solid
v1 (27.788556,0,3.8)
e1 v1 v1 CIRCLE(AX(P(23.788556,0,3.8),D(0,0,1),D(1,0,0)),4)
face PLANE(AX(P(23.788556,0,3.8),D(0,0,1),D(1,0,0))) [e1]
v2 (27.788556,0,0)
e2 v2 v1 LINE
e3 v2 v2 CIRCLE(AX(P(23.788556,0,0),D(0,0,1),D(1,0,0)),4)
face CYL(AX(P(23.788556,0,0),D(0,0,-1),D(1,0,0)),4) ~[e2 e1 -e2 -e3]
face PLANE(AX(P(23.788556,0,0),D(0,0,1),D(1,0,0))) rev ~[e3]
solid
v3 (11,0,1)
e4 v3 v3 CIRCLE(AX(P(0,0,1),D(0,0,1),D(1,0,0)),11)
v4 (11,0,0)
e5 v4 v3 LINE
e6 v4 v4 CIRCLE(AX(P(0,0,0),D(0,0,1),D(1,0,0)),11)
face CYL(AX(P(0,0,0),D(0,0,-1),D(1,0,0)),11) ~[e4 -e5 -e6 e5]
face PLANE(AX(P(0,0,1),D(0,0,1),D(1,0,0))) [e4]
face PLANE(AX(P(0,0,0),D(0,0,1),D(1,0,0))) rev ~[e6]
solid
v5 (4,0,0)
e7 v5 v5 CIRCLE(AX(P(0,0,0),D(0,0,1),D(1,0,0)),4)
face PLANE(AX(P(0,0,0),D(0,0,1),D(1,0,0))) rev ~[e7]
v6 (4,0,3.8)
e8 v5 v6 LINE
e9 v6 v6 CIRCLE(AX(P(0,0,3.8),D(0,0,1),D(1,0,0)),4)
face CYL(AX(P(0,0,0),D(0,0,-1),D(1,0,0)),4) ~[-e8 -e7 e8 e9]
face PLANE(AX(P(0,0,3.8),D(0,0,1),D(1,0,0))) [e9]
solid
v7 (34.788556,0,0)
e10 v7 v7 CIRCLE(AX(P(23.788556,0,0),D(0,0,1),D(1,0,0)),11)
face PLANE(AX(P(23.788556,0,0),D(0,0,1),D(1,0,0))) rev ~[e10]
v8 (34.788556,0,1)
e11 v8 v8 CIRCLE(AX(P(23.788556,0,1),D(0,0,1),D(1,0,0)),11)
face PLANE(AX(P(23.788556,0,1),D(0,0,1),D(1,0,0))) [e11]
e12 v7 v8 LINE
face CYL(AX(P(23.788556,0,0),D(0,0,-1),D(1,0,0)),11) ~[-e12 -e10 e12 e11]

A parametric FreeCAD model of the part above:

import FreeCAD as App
import Part
import Sketcher

V = App.Vector
Q = App.Units.Quantity

doc = App.newDocument("Part")
body = doc.addObject("PartDesign::Body", "Body")

sketch1 = body.newObject("Sketcher::SketchObject", "Sketch")
sketch1.AttachmentSupport = (doc.getObject("XY_Plane"), [""])
sketch1.MapMode = "FlatFace"
sketch1.addGeometry(Part.Circle(V(24, 0, 0), V(0, 0, 1), 11), False)
sketch1.addConstraint([
    Sketcher.Constraint("PointOnObject", 0, 3, -1),
    Sketcher.Constraint("Diameter", 0, Q("22 mm")),
    Sketcher.Constraint("DistanceX", -1, 1, 0, 3, Q("23.788556 mm")),
])
pad1 = body.newObject("PartDesign::Pad", "Pad")
pad1.Profile = sketch1
pad1.Length = 1
body2 = doc.addObject("PartDesign::Body", "Body001")

sketch2 = body2.newObject("Sketcher::SketchObject", "Sketch001")
sketch2.AttachmentSupport = (doc.getObject("XY_Plane001"), [""])
sketch2.MapMode = "FlatFace"
sketch2.addGeometry(Part.Circle(V(0, 0, 0), V(0, 0, 1), 11), False)
sketch2.addConstraint([
    Sketcher.Constraint("Coincident", 0, 3, -1, 1),
    Sketcher.Constraint("Diameter", 0, Q("22 mm")),
])
pad2 = body2.newObject("PartDesign::Pad", "Pad001")
pad2.Profile = sketch2
pad2.Length = 1
body3 = doc.addObject("PartDesign::Body", "Body002")

sketch3 = body3.newObject("Sketcher::SketchObject", "Sketch002")
sketch3.AttachmentSupport = (doc.getObject("XY_Plane002"), [""])
sketch3.MapMode = "FlatFace"
sketch3.addGeometry(Part.Circle(V(0, 0, 0), V(0, 0, 1), 4), False)
sketch3.addConstraint([
    Sketcher.Constraint("Coincident", 0, 3, -1, 1),
    Sketcher.Constraint("Diameter", 0, Q("8 mm")),
])
pad3 = body3.newObject("PartDesign::Pad", "Pad002")
pad3.Profile = sketch3
pad3.Length = 3.8
body4 = doc.addObject("PartDesign::Body", "Body003")

sketch4 = body4.newObject("Sketcher::SketchObject", "Sketch003")
sketch4.AttachmentSupport = (doc.getObject("XY_Plane003"), [""])
sketch4.MapMode = "FlatFace"
sketch4.addGeometry(Part.Circle(V(23.8, 0, 0), V(0, 0, 1), 4), False)
sketch4.addConstraint([
    Sketcher.Constraint("PointOnObject", 0, 3, -1),
    Sketcher.Constraint("Diameter", 0, Q("8 mm")),
    Sketcher.Constraint("DistanceX", -1, 1, 0, 3, Q("23.788556 mm")),
])
pad4 = body4.newObject("PartDesign::Pad", "Pad003")
pad4.Profile = sketch4
pad4.Length = 3.8

doc.recompute()
